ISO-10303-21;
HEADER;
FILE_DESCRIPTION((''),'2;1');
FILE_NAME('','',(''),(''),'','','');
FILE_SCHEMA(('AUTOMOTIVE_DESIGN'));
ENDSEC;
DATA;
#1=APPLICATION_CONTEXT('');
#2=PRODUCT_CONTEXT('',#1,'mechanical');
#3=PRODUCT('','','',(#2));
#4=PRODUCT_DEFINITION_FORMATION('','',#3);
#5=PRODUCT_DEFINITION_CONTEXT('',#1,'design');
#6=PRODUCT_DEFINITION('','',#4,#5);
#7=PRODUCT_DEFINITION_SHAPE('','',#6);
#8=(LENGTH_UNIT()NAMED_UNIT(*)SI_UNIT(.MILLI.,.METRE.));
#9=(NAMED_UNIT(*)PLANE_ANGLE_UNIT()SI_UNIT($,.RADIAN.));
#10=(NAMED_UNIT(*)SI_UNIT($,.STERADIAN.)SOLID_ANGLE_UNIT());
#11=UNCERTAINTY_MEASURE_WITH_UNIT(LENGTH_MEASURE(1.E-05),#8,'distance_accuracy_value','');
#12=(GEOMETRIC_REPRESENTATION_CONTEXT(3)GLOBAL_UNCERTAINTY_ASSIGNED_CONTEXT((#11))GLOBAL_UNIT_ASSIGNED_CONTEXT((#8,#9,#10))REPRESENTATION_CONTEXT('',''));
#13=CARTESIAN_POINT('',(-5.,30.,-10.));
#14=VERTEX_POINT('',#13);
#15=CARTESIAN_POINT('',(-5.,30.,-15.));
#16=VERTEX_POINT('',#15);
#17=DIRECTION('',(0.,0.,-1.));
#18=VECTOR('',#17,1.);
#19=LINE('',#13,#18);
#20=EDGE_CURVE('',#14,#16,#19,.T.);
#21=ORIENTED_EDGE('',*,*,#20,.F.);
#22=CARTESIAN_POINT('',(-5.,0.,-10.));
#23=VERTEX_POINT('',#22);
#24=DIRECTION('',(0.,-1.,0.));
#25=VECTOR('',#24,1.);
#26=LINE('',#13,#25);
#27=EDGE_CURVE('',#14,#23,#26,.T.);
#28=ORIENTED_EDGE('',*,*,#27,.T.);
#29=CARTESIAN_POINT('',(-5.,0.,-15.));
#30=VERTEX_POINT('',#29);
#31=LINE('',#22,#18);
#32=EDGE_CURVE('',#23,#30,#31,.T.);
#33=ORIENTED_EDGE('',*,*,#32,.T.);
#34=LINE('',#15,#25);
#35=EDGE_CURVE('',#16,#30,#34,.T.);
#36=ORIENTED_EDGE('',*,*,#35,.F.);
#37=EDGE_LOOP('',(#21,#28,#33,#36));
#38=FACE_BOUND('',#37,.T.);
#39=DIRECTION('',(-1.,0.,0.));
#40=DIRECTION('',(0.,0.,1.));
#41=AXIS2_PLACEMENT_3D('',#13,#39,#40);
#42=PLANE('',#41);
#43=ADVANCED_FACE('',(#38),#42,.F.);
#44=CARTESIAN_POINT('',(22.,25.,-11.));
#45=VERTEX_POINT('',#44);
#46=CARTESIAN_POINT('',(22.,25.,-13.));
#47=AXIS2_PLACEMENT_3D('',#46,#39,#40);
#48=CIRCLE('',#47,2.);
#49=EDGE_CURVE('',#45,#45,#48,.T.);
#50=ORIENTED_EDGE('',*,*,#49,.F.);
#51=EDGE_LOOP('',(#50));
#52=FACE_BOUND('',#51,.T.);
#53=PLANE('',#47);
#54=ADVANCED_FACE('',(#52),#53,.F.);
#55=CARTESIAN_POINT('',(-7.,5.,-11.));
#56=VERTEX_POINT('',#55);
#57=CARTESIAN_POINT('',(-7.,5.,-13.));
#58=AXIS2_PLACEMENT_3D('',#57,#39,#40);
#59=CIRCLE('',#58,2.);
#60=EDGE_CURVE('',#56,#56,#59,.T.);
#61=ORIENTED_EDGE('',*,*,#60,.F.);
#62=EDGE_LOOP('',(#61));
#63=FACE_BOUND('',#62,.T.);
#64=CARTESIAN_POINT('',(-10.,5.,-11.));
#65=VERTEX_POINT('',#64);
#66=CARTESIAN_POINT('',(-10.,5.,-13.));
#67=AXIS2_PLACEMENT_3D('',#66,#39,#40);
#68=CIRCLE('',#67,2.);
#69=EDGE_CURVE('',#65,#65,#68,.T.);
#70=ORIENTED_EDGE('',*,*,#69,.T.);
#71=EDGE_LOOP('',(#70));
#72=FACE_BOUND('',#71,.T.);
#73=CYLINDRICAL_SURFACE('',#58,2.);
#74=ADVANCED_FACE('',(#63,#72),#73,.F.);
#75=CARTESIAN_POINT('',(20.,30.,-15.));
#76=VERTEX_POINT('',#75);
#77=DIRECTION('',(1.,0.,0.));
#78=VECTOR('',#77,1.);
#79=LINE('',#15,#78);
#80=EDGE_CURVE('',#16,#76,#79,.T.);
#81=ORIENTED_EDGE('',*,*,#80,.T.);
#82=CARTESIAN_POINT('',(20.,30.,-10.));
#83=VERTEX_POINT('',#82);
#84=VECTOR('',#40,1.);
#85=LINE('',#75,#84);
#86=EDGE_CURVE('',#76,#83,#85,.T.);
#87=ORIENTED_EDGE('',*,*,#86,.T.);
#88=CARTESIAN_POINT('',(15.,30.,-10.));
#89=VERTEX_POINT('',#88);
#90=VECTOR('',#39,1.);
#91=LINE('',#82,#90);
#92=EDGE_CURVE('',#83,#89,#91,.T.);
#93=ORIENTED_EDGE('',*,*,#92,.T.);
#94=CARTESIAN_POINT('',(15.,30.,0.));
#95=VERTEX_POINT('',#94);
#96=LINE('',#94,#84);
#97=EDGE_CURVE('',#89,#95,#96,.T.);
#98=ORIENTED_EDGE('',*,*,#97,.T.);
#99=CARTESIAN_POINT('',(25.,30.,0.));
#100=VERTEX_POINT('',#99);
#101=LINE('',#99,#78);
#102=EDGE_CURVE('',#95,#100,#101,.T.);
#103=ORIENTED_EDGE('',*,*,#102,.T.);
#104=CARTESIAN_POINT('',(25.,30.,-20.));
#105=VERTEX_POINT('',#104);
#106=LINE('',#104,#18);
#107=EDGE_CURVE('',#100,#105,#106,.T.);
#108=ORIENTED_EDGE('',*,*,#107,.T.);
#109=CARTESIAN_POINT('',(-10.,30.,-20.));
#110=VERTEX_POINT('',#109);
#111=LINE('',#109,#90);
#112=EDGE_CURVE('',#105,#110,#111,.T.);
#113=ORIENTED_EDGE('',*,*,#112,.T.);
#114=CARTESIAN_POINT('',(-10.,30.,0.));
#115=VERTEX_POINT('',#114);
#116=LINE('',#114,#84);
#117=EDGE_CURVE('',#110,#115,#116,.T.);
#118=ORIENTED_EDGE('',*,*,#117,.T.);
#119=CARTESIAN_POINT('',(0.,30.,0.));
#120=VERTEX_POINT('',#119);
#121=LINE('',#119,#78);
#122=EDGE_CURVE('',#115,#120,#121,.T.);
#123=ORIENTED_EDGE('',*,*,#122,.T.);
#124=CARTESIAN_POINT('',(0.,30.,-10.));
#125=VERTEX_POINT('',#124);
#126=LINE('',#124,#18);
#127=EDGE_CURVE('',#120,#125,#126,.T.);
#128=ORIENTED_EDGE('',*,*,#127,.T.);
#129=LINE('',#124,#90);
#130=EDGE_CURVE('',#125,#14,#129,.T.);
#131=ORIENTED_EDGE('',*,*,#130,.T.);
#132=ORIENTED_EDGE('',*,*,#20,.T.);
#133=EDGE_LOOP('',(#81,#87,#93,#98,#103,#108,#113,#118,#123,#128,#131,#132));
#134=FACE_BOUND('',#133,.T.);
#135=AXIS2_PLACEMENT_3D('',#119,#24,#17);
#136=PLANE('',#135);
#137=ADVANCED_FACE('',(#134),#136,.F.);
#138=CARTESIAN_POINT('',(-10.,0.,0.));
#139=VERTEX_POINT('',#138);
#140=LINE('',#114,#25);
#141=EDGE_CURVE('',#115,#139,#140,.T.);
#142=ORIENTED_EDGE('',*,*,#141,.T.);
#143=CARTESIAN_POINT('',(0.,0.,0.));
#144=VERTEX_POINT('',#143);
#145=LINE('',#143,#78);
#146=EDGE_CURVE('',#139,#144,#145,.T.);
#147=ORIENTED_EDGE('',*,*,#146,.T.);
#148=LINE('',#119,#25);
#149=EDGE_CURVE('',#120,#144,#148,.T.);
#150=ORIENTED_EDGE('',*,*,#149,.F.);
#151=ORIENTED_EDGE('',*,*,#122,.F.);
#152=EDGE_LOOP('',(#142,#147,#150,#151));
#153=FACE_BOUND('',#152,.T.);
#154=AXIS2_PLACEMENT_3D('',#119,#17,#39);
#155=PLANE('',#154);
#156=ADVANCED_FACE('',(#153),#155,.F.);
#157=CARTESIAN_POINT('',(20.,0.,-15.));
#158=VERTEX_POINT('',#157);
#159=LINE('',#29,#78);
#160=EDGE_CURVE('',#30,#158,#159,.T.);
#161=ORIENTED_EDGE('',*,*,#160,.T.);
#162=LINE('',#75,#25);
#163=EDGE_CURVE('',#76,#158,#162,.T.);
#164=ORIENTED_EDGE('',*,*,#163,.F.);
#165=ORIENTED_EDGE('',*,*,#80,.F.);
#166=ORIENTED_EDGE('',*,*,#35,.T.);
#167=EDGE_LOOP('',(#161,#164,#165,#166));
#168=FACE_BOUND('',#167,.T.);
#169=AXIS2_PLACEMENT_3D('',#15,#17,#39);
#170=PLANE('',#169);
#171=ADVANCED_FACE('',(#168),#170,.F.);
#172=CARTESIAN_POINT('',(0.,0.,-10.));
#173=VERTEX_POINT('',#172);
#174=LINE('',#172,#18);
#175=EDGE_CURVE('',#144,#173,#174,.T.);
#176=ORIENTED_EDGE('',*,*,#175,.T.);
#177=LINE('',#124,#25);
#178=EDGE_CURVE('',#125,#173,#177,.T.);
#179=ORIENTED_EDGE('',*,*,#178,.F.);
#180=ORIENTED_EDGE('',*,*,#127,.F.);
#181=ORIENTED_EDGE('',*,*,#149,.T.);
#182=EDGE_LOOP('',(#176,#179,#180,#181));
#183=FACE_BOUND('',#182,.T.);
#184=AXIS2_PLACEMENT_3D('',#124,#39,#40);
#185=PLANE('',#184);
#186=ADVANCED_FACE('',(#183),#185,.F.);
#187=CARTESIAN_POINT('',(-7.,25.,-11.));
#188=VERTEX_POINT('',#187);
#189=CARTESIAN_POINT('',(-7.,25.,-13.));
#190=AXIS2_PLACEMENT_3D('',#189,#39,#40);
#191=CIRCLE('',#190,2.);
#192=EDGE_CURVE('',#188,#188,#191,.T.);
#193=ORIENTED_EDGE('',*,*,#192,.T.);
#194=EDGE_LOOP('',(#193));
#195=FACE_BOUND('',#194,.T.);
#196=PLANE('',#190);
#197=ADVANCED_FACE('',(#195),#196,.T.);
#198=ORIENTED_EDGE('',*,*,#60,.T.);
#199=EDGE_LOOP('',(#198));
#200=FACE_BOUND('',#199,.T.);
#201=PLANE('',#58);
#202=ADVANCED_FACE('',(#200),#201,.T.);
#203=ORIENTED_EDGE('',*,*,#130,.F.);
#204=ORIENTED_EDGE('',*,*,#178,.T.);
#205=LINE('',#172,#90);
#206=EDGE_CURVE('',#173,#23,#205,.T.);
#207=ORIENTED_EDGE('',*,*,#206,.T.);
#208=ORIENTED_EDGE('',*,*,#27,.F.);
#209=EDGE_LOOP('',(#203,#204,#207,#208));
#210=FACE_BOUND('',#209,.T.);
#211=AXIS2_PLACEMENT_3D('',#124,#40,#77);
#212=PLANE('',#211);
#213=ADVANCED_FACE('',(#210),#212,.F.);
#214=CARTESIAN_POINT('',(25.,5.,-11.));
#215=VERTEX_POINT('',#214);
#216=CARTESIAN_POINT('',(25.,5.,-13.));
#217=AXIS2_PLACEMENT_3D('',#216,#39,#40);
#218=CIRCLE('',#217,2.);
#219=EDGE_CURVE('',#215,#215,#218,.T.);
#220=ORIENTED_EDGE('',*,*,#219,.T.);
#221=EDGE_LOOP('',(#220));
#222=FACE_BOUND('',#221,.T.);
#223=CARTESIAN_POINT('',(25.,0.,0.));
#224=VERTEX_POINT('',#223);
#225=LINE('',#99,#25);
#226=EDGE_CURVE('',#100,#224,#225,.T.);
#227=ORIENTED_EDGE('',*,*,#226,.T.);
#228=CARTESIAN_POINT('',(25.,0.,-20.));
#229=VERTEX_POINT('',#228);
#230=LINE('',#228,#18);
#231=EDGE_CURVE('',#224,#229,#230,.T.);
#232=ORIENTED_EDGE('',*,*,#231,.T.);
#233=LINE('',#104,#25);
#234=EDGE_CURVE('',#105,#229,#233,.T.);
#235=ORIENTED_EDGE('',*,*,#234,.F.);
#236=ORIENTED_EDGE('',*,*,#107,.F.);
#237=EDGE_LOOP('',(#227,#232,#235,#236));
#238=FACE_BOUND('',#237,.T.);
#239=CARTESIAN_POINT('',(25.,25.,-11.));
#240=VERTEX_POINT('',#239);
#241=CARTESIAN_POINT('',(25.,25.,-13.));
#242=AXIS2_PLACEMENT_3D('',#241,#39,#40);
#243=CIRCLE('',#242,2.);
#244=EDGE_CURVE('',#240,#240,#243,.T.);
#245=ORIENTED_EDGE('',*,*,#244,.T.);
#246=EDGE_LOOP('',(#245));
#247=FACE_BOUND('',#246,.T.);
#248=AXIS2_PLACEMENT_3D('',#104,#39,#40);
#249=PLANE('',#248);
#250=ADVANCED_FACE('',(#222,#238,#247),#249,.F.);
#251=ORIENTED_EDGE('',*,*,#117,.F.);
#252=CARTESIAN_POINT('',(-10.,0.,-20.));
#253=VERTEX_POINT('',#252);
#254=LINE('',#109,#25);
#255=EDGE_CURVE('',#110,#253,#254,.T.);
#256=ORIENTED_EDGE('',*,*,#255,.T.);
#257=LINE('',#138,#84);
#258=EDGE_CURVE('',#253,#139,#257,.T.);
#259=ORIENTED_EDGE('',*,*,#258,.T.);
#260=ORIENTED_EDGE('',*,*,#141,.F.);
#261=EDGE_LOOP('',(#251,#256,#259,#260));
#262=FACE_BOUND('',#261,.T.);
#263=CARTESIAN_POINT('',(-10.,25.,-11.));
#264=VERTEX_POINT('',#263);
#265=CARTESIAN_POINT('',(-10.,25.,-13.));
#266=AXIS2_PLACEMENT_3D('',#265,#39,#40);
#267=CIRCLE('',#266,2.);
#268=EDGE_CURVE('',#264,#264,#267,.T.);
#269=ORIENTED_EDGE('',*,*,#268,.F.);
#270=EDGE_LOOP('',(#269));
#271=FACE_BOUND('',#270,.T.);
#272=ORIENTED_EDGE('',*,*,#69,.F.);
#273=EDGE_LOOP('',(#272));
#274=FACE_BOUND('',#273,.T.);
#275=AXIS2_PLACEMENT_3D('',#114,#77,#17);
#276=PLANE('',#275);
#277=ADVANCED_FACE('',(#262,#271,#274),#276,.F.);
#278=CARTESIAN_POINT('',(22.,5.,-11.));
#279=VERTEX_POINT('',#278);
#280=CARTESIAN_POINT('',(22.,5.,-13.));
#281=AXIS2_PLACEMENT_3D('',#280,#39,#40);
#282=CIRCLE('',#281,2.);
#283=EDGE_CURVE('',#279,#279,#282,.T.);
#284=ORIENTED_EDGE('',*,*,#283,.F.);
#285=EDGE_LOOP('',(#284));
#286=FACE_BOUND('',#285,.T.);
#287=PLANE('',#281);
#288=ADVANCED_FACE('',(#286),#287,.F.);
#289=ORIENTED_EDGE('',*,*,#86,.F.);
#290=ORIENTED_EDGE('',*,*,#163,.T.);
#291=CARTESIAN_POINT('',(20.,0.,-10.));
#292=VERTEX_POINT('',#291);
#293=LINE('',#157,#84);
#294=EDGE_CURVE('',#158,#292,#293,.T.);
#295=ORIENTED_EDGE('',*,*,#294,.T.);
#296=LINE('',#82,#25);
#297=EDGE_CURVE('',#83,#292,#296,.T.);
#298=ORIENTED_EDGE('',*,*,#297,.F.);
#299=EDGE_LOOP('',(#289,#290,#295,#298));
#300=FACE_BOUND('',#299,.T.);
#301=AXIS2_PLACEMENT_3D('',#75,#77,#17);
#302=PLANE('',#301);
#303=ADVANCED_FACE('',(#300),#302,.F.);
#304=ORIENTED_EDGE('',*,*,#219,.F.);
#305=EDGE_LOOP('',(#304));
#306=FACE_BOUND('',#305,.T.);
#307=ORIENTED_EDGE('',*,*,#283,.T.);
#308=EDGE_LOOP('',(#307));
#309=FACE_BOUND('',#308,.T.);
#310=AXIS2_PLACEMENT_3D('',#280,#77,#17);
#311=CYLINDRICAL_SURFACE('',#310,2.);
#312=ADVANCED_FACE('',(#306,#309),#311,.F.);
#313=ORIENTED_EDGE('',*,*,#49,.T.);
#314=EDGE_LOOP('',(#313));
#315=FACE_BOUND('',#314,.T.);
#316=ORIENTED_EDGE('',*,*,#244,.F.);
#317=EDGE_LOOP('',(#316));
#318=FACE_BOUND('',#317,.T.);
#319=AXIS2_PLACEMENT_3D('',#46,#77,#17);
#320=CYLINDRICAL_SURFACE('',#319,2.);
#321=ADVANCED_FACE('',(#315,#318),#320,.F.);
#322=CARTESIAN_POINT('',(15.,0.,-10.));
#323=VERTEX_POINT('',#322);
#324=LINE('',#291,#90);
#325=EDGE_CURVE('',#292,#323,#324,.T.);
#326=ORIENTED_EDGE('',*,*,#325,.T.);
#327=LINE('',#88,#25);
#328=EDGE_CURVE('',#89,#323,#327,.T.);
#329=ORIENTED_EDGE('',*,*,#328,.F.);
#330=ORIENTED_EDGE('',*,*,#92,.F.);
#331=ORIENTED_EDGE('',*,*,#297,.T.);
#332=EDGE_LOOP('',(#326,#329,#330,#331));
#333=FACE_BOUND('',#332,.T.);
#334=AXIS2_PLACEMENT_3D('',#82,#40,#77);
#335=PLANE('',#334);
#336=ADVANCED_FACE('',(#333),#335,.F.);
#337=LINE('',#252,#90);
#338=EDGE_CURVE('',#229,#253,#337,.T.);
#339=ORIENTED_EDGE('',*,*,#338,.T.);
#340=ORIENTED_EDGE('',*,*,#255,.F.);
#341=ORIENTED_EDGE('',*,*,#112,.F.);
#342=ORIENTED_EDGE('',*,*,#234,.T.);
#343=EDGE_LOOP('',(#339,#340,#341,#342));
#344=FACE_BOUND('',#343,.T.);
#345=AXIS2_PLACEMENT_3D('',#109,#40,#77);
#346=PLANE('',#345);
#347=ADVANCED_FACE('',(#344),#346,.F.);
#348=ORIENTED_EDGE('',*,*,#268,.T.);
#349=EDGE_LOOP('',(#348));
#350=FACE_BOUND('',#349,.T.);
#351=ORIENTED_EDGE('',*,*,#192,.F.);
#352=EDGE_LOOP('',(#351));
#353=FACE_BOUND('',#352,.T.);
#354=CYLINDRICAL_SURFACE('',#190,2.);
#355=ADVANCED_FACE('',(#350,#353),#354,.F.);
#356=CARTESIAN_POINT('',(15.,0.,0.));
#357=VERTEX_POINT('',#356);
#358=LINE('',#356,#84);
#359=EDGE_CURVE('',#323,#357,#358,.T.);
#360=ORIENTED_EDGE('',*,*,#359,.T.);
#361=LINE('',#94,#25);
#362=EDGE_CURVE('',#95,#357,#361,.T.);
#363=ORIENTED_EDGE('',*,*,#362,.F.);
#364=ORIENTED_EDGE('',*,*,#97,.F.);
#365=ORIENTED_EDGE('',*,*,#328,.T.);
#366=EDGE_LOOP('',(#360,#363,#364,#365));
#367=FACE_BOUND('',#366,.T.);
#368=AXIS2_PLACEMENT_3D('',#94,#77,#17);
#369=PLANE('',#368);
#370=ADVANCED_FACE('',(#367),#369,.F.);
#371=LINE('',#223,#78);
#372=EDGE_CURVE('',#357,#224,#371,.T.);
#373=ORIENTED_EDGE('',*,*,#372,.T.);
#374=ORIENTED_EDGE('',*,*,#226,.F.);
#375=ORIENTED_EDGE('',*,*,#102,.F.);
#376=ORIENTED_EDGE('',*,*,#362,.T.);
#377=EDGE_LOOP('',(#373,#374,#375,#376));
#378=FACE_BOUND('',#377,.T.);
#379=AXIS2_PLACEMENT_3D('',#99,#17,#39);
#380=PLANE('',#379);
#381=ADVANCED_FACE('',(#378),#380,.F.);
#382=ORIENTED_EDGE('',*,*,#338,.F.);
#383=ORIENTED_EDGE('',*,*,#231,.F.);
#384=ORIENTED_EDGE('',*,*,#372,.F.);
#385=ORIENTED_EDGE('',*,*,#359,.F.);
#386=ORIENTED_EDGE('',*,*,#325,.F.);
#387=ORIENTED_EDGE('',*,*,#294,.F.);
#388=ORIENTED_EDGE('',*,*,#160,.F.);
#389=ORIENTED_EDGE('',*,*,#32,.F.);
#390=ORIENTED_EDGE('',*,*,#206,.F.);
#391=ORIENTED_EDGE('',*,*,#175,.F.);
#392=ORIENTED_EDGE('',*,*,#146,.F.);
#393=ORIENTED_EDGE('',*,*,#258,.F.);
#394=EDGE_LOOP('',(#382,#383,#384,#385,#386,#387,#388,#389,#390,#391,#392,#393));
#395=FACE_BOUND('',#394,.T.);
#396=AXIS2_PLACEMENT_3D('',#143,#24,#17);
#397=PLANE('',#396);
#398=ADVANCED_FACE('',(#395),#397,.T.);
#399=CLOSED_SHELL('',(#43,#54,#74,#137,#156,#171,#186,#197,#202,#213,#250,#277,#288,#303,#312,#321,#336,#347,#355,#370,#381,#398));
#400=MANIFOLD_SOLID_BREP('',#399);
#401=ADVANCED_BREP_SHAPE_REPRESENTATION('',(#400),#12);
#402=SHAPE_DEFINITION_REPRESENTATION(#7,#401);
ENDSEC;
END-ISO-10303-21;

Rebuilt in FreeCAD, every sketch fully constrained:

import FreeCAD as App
import Part
import Sketcher

V = App.Vector

doc = App.newDocument("Part")
body = doc.addObject("PartDesign::Body", "Body")

# Sketch on XZ plane
sketch1 = doc.addObject("Sketcher::SketchObject", "Sketch")
body.addObject(sketch1)
sketch1.AttachmentSupport = (doc.XZ_Plane, [""])
sketch1.MapMode = "FlatFace"
sketch1.addGeometry([
    Part.LineSegment(V(-10, 0, 0), V(0, 0, 0)),  # 0
    Part.LineSegment(V(0, 0, 0), V(0, -10, 0)),  # 1
    Part.LineSegment(V(0, -10, 0), V(-5, -10, 0)),  # 2
    Part.LineSegment(V(-5, -10, 0), V(-5, -15, 0)),  # 3
    Part.LineSegment(V(-5, -15, 0), V(20, -15, 0)),  # 4
    Part.LineSegment(V(20, -15, 0), V(20, -10, 0)),  # 5
    Part.LineSegment(V(20, -10, 0), V(15, -10, 0)),  # 6
    Part.LineSegment(V(15, -10, 0), V(15, 0, 0)),  # 7
    Part.LineSegment(V(15, 0, 0), V(25, 0, 0)),  # 8
    Part.LineSegment(V(25, 0, 0), V(25, -20, 0)),  # 9
    Part.LineSegment(V(25, -20, 0), V(-10, -20, 0)),  # 10
    Part.LineSegment(V(-10, -20, 0), V(-10, 0, 0)),  # 11
], False)
sketch1.addConstraint([
    Sketcher.Constraint("Coincident", 0, 2, 1, 1),
    Sketcher.Constraint("Coincident", 1, 2, 2, 1),
    Sketcher.Constraint("Coincident", 2, 2, 3, 1),
    Sketcher.Constraint("Coincident", 3, 2, 4, 1),
    Sketcher.Constraint("Coincident", 4, 2, 5, 1),
    Sketcher.Constraint("Coincident", 5, 2, 6, 1),
    Sketcher.Constraint("Coincident", 6, 2, 7, 1),
    Sketcher.Constraint("Coincident", 7, 2, 8, 1),
    Sketcher.Constraint("Coincident", 8, 2, 9, 1),
    Sketcher.Constraint("Coincident", 9, 2, 10, 1),
    Sketcher.Constraint("Coincident", 10, 2, 11, 1),
    Sketcher.Constraint("Coincident", 11, 2, 0, 1),
    Sketcher.Constraint("Horizontal", 0),
    Sketcher.Constraint("Vertical", 1),
    Sketcher.Constraint("Horizontal", 2),
    Sketcher.Constraint("Vertical", 3),
    Sketcher.Constraint("Horizontal", 4),
    Sketcher.Constraint("Vertical", 5),
    Sketcher.Constraint("Horizontal", 6),
    Sketcher.Constraint("Vertical", 7),
    Sketcher.Constraint("Horizontal", 8),
    Sketcher.Constraint("Vertical", 9),
    Sketcher.Constraint("Horizontal", 10),
    Sketcher.Constraint("Vertical", 11),
    Sketcher.Constraint("Coincident", 0, 2, -1, 1),
    Sketcher.Constraint("PointOnObject", 7, 2, -1),
    Sketcher.Constraint("Horizontal", 2, 2, 5, 2),
    Sketcher.Constraint("Equal", 2, 6),
    Sketcher.Constraint("Equal", 0, 8),
    Sketcher.Constraint("Equal", 8, 1),
    Sketcher.Constraint("Equal", 6, 3),
    Sketcher.Constraint("DistanceX", 0, 1, 0, 2, 10.0),
    Sketcher.Constraint("DistanceX", 2, 2, 2, 1, 5.0),
    Sketcher.Constraint("DistanceX", 4, 1, 4, 2, 25.0),
    Sketcher.Constraint("DistanceY", 9, 2, 9, 1, 20.0),
])
pad1 = doc.addObject("PartDesign::Pad", "Pad")
body.addObject(pad1)
pad1.Profile = sketch1
pad1.Length = 30
pad1.Reversed = True

# Sketch on YZ plane
sketch2 = doc.addObject("Sketcher::SketchObject", "Sketch001")
body.addObject(sketch2)
sketch2.AttachmentSupport = (doc.YZ_Plane, [""])
sketch2.MapMode = "FlatFace"
sketch2.AttachmentOffset = App.Placement(V(0, 0, 25), App.Rotation())
sketch2.addGeometry([
    Part.Circle(V(25, -13, 0), V(0, 0, 1), 2),
    Part.Circle(V(5, -13, 0), V(0, 0, 1), 2),
], False)
sketch2.addConstraint([
    Sketcher.Constraint("Equal", 0, 1),
    Sketcher.Constraint("Horizontal", 0, 3, 1, 3),
    Sketcher.Constraint("Diameter", 0, 4.0),
    Sketcher.Constraint("DistanceX", -1, 1, 0, 3, 25.0),
    Sketcher.Constraint("DistanceY", 0, 3, -1, 1, 13.0),
    Sketcher.Constraint("DistanceX", -1, 1, 1, 3, 5.0),
])
pocket1 = doc.addObject("PartDesign::Pocket", "Pocket")
body.addObject(pocket1)
pocket1.Profile = sketch2
pocket1.Length = 3

# Sketch on YZ plane
sketch3 = doc.addObject("Sketcher::SketchObject", "Sketch002")
body.addObject(sketch3)
sketch3.AttachmentSupport = (doc.YZ_Plane, [""])
sketch3.MapMode = "FlatFace"
sketch3.AttachmentOffset = App.Placement(V(0, 0, -7), App.Rotation())
sketch3.addGeometry([
    Part.Circle(V(25, -13, 0), V(0, 0, 1), 2),
    Part.Circle(V(5, -13, 0), V(0, 0, 1), 2),
], False)
sketch3.addConstraint([
    Sketcher.Constraint("Equal", 0, 1),
    Sketcher.Constraint("Horizontal", 0, 3, 1, 3),
    Sketcher.Constraint("Diameter", 0, 4.0),
    Sketcher.Constraint("DistanceX", -1, 1, 0, 3, 25.0),
    Sketcher.Constraint("DistanceY", 0, 3, -1, 1, 13.0),
    Sketcher.Constraint("DistanceX", -1, 1, 1, 3, 5.0),
])
pocket2 = doc.addObject("PartDesign::Pocket", "Pocket001")
body.addObject(pocket2)
pocket2.Profile = sketch3
pocket2.Length = 3

doc.recompute()
